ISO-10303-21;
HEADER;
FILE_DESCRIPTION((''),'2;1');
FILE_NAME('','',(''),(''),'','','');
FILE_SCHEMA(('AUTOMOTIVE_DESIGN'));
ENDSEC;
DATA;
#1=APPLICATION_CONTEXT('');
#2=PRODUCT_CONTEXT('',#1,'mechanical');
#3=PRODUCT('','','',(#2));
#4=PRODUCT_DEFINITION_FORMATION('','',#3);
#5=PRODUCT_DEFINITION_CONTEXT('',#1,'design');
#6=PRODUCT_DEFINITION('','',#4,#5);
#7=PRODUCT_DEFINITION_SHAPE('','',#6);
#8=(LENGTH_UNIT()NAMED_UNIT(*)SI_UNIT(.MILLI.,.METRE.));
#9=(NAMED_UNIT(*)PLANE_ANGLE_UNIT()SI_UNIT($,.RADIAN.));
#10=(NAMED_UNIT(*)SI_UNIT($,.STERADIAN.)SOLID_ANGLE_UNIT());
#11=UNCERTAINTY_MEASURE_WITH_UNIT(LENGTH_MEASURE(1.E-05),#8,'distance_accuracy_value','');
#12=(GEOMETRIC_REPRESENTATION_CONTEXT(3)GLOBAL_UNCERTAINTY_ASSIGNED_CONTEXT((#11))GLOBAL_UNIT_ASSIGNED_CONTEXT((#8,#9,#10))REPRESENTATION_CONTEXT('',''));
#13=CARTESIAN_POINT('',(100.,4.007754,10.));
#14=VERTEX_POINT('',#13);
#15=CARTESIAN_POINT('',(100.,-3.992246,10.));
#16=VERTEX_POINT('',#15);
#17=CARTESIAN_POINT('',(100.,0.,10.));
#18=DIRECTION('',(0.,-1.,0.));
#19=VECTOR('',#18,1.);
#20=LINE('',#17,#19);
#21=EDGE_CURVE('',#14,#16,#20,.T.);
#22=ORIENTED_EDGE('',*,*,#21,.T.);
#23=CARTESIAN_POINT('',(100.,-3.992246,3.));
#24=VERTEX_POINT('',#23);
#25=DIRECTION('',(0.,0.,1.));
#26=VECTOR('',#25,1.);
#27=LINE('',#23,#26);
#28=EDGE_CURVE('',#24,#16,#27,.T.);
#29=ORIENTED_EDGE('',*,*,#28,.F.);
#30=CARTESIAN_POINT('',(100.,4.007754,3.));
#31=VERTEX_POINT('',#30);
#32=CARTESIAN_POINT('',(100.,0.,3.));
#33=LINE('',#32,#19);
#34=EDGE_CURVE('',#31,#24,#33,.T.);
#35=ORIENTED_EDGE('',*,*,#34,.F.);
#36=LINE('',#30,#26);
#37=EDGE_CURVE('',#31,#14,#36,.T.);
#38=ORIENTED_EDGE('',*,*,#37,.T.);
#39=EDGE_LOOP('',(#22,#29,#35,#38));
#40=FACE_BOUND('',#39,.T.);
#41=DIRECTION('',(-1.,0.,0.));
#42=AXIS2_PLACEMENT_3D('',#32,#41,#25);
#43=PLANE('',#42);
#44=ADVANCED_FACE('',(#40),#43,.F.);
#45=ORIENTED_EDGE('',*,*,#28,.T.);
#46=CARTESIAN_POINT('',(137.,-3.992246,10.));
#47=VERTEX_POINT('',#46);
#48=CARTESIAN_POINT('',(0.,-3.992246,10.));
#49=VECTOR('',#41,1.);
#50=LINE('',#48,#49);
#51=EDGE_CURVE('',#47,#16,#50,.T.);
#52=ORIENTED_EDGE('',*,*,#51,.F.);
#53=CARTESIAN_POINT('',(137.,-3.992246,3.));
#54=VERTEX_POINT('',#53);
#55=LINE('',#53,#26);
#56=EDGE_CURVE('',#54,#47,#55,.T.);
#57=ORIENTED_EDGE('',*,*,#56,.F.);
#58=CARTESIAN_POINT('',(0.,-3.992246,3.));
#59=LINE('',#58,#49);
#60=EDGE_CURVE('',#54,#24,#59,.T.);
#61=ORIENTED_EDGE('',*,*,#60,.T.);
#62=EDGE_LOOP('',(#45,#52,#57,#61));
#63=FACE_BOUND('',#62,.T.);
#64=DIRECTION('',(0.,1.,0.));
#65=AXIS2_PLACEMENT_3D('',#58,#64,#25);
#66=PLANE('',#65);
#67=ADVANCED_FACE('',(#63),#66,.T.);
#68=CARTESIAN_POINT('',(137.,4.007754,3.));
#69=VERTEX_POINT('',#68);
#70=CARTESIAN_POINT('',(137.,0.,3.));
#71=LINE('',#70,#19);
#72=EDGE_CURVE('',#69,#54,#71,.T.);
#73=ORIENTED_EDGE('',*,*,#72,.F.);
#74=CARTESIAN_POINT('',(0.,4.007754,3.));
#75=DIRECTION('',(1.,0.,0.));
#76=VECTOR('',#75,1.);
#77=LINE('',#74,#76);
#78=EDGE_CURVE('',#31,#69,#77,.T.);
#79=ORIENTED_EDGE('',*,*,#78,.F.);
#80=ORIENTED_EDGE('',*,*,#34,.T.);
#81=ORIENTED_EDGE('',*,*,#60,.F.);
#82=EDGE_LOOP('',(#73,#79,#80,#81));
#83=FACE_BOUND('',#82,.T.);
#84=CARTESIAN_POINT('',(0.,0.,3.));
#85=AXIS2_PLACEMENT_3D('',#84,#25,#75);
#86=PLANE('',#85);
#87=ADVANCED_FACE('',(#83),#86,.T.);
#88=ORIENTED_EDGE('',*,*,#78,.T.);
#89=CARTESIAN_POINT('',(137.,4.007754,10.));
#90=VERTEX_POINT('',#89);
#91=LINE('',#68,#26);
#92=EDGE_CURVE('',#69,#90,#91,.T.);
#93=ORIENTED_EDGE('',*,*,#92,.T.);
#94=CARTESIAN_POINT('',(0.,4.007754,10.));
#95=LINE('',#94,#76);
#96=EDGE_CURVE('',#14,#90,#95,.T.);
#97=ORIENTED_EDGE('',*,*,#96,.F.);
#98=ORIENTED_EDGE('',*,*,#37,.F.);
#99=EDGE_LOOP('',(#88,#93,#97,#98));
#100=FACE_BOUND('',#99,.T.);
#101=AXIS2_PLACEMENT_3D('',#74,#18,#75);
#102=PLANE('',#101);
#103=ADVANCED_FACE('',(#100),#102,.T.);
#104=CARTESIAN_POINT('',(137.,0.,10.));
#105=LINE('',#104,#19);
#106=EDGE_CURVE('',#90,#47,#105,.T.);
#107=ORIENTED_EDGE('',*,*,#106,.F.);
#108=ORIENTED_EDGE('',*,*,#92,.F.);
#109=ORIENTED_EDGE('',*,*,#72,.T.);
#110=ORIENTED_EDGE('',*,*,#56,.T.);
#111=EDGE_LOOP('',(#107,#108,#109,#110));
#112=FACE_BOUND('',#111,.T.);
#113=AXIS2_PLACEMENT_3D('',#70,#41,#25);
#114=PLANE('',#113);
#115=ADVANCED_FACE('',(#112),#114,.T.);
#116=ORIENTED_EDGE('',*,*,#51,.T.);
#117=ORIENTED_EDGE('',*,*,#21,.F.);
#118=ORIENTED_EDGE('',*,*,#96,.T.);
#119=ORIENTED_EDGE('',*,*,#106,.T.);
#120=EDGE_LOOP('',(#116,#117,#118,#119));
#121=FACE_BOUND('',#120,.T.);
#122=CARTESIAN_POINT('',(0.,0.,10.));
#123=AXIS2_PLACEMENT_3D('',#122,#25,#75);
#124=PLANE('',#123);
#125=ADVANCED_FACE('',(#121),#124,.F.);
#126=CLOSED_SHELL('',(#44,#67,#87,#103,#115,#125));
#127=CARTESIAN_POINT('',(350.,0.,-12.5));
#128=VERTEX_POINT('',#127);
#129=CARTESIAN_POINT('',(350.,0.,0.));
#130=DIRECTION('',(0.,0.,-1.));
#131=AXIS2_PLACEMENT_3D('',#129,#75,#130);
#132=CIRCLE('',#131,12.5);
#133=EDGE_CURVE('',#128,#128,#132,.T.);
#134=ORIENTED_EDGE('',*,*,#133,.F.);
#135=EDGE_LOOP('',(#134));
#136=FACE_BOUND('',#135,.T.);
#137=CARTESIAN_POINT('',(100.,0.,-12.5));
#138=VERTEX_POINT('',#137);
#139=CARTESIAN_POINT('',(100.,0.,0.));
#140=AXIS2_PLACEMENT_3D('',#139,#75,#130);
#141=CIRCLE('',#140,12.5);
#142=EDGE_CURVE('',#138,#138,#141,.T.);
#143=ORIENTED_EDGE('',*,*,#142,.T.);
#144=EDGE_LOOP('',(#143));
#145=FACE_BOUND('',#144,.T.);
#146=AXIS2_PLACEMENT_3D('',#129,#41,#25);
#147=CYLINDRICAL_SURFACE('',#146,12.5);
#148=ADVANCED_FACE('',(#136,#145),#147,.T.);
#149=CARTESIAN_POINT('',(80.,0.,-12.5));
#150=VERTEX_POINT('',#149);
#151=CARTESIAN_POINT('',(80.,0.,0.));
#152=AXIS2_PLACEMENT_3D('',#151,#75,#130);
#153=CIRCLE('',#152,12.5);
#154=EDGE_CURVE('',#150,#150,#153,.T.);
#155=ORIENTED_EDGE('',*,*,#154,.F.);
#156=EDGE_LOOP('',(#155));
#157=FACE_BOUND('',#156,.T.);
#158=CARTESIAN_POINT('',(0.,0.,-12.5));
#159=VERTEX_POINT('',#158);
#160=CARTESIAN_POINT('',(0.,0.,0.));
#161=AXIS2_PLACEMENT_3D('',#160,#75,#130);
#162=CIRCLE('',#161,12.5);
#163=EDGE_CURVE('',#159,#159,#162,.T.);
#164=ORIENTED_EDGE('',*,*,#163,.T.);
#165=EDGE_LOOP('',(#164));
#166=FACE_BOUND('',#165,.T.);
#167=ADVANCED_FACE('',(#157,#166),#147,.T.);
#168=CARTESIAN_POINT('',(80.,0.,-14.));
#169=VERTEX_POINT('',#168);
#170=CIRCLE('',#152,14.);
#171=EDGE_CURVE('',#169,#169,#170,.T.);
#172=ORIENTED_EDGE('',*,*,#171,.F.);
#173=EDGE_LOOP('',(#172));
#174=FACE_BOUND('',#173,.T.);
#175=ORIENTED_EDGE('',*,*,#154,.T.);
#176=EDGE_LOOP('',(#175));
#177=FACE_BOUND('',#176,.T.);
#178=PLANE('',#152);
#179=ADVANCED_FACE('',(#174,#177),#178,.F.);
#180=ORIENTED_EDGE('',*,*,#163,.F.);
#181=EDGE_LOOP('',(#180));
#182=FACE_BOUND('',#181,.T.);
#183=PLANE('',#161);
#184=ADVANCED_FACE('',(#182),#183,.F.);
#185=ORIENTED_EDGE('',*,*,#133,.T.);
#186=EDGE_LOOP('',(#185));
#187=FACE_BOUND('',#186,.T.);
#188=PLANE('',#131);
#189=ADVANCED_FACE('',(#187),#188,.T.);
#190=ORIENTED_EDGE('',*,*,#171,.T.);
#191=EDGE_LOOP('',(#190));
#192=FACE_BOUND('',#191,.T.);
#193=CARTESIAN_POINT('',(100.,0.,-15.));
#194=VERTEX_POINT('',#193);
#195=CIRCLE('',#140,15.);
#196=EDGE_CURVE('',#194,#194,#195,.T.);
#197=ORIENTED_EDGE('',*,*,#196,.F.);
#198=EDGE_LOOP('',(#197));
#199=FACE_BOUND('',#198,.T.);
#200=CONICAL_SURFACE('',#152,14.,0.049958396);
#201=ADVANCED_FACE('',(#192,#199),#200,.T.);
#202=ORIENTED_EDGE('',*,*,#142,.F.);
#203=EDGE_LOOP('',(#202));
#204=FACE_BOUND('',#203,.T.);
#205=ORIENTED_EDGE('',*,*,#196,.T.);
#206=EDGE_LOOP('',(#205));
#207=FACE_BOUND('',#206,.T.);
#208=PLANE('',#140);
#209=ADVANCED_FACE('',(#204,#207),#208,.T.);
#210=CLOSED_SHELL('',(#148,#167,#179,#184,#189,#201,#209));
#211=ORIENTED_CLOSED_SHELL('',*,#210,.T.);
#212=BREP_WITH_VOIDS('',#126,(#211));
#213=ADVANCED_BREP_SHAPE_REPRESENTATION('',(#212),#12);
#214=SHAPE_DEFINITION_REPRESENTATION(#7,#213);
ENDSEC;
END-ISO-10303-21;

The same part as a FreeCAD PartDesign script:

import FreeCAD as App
import Part
import Sketcher

doc = App.newDocument("Part")
body = doc.addObject("PartDesign::Body", "Body")

# Sketch on YZ plane
sketch1 = doc.addObject("Sketcher::SketchObject", "Sketch")
body.addObject(sketch1)
sketch1.AttachmentSupport = (doc.YZ_Plane, [""])
sketch1.MapMode = "FlatFace"
sketch1.addGeometry(Part.Circle(App.Vector(0, 0, 0), App.Vector(0, 0, 1), 12.5), False)
sketch1.addConstraint([
    Sketcher.Constraint("Coincident", 0, 3, -1, 1),
    Sketcher.Constraint("Diameter", 0, 25.0),
])
pad1 = doc.addObject("PartDesign::Pad", "Pad")
body.addObject(pad1)
pad1.Profile = sketch1
pad1.Length = 350

# Sketch on YZ plane
sketch2 = doc.addObject("Sketcher::SketchObject", "Sketch001")
body.addObject(sketch2)
sketch2.AttachmentSupport = (doc.YZ_Plane, [""])
sketch2.MapMode = "FlatFace"
sketch2.AttachmentOffset = App.Placement(App.Vector(0, 0, 100), App.Rotation())
sketch2.addGeometry(Part.Circle(App.Vector(0, 0, 0), App.Vector(0, 0, 1), 15), False)
sketch2.addConstraint([
    Sketcher.Constraint("Coincident", 0, 3, -1, 1),
    Sketcher.Constraint("Diameter", 0, 30.0),
])

# Sketch on YZ plane
sketch3 = doc.addObject("Sketcher::SketchObject", "Sketch002")
body.addObject(sketch3)
sketch3.AttachmentSupport = (doc.YZ_Plane, [""])
sketch3.MapMode = "FlatFace"
sketch3.AttachmentOffset = App.Placement(App.Vector(0, 0, 80), App.Rotation())
sketch3.addGeometry(Part.Circle(App.Vector(0, 0, 0), App.Vector(0, 0, 1), 14), False)
sketch3.addConstraint([
    Sketcher.Constraint("Coincident", 0, 3, -1, 1),
    Sketcher.Constraint("Diameter", 0, 28.0),
])

additiveloft = doc.addObject("PartDesign::AdditiveLoft", "AdditiveLoft")
body.addObject(additiveloft)
additiveloft.Profile = sketch2
additiveloft.Sections = [sketch3]

# Sketch on XY plane
sketch4 = doc.addObject("Sketcher::SketchObject", "Sketch003")
body.addObject(sketch4)
sketch4.AttachmentSupport = (doc.XY_Plane, [""])
sketch4.MapMode = "FlatFace"
sketch4.AttachmentOffset = App.Placement(App.Vector(0, 0, 10), App.Rotation())
sketch4.addGeometry([
    Part.LineSegment(App.Vector(100, -3.992246, 0), App.Vector(137, -3.992246, 0)),
    Part.LineSegment(App.Vector(137, -3.992246, 0), App.Vector(137, 4.007754, 0)),
    Part.LineSegment(App.Vector(137, 4.007754, 0), App.Vector(100, 4.007754, 0)),
    Part.LineSegment(App.Vector(100, 4.007754, 0), App.Vector(100, -3.992246, 0)),
], False)
sketch4.addConstraint([
    Sketcher.Constraint("Coincident", 0, 2, 1, 1),
    Sketcher.Constraint("Coincident", 1, 2, 2, 1),
    Sketcher.Constraint("Coincident", 2, 2, 3, 1),
    Sketcher.Constraint("Coincident", 3, 2, 0, 1),
    Sketcher.Constraint("Horizontal", 0),
    Sketcher.Constraint("Vertical", 1),
    Sketcher.Constraint("Horizontal", 2),
    Sketcher.Constraint("Vertical", 3),
    Sketcher.Constraint("DistanceX", 0, 1, 0, 2, 37.0),
    Sketcher.Constraint("DistanceY", 1, 1, 1, 2, 8.0),
    Sketcher.Constraint("DistanceX", -1, 1, 0, 2, 137.0),
    Sketcher.Constraint("DistanceY", 0, 2, -1, 1, 3.992246),
])
pocket1 = doc.addObject("PartDesign::Pocket", "Pocket")
body.addObject(pocket1)
pocket1.Profile = sketch4
pocket1.Length = 7

doc.recompute()
